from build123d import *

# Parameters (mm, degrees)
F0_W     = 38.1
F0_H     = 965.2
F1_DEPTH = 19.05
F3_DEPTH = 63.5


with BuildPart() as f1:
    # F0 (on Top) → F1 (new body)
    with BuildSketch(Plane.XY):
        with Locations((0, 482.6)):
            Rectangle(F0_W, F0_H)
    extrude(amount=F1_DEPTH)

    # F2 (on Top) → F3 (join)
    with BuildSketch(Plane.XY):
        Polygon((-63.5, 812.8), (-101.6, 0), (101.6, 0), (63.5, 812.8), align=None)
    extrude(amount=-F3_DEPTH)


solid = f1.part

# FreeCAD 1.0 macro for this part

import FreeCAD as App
import Part
import Sketcher
Q = App.Units.Quantity


def add_polygon(sketch, points):
    """Adds a closed chain of lines whose ends are joined by coincident constraints."""
    first, n = sketch.GeometryCount, len(points)
    for a, b in zip(points, points[1:] + points[:1]):
        sketch.addGeometry(Part.LineSegment(App.Vector(*a, 0), App.Vector(*b, 0)), False)
    for i in range(n):
        sketch.addConstraint(Sketcher.Constraint("Coincident", first + i, 2, first + (i + 1) % n, 1))

doc = App.newDocument("Part")
body = doc.addObject("PartDesign::Body", "Body")

sketch1 = body.newObject("Sketcher::SketchObject", "Sketch")
sketch1.AttachmentSupport = (doc.getObject("XY_Plane"), [""])
sketch1.MapMode = "FlatFace"
add_polygon(sketch1, [(-19, 965), (-19, 0), (19, 0), (19, 965)])
sketch1.addConstraint([
    Sketcher.Constraint("Vertical", 0),
    Sketcher.Constraint("Horizontal", 1),
    Sketcher.Constraint("Vertical", 2),
    Sketcher.Constraint("Horizontal", 3),
    Sketcher.Constraint("Symmetric", 0, 2, 1, 2, -1, 1),
    Sketcher.Constraint("DistanceY", 0, 2, 0, 1, Q("38 in")),
    Sketcher.Constraint("DistanceX", 1, 1, 1, 2, Q("1.5 in")),
])
pad1 = body.newObject("PartDesign::Pad", "Pad")
pad1.Profile = sketch1
pad1.Length = Q("0.75 in")

sketch2 = body.newObject("Sketcher::SketchObject", "Sketch001")
sketch2.AttachmentSupport = (doc.getObject("XY_Plane"), [""])
sketch2.MapMode = "FlatFace"
add_polygon(sketch2, [(-64, 813), (-102, 0), (102, 0), (64, 813)])
sketch2.addConstraint([
    Sketcher.Constraint("Horizontal", 1),
    Sketcher.Constraint("Horizontal", 3),
    Sketcher.Constraint("Symmetric", 0, 2, 1, 2, -1, 1),
    Sketcher.Constraint("Equal", 0, 2),
    Sketcher.Constraint("DistanceX", 1, 1, 1, 2, Q("8 in")),
    Sketcher.Constraint("DistanceX", 3, 2, 3, 1, Q("5 in")),
    Sketcher.Constraint("DistanceY", -1, 1, 2, 2, Q("32 in")),
])
pad2 = body.newObject("PartDesign::Pad", "Pad001")
pad2.Profile = sketch2
pad2.Length = Q("2.5 in")
pad2.Reversed = True

doc.recompute()
